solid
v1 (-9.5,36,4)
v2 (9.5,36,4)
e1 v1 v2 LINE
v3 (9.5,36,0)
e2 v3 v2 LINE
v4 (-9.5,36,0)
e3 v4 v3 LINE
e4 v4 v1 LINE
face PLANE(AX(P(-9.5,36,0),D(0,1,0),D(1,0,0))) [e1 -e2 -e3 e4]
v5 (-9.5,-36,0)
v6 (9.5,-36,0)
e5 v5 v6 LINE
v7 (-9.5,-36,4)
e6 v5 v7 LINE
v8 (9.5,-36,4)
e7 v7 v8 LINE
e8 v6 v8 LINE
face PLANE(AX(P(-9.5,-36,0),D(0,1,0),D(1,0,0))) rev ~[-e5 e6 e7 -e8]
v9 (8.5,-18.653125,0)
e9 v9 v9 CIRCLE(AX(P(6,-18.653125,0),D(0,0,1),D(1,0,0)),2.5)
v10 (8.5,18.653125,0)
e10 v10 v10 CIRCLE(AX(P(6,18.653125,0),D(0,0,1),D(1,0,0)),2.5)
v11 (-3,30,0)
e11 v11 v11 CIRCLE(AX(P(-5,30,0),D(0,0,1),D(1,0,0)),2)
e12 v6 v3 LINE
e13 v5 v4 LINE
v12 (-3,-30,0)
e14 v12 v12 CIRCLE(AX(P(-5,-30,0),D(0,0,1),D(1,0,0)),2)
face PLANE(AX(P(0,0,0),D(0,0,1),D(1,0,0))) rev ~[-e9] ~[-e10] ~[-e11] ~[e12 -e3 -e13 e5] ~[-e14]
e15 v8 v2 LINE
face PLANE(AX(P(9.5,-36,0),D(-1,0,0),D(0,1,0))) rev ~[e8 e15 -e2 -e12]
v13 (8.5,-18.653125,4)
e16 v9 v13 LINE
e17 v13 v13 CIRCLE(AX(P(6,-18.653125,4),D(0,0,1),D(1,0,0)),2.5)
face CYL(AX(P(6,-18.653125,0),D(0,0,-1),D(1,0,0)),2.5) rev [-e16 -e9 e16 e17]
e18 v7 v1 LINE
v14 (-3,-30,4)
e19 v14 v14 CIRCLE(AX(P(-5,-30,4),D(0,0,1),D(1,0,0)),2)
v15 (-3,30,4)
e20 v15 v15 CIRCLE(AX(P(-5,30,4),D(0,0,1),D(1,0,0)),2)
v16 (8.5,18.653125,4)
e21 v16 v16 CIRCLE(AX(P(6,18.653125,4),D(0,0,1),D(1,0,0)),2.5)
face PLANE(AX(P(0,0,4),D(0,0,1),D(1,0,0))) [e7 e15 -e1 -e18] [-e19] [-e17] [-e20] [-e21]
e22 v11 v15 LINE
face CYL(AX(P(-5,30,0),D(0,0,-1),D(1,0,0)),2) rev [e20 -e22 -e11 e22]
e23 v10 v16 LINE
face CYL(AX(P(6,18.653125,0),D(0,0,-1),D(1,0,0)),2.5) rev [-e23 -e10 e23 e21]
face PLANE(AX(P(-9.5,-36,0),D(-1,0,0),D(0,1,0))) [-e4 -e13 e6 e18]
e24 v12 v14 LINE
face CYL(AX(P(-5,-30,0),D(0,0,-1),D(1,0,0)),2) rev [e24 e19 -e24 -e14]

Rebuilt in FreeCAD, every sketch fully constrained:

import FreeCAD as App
import Part
import Sketcher
Q = App.Units.Quantity

doc = App.newDocument("Part")
params = doc.addObject("Spreadsheet::Sheet", "Params")
for row, (alias, value) in enumerate([
    ("sketch1_diameter", "4 mm"),
    ("sketch1_diameter2", "5 mm"),
    ("sketch1_width", "19 mm"),
    ("sketch1_height", "72 mm"),
    ("pad1_length", "4 mm"),
], start=1):
    params.set(f"A{row}", alias)
    params.set(f"B{row}", "=" + value)
    params.setAlias(f"B{row}", alias)

body = doc.addObject("PartDesign::Body", "Body")

sketch1 = body.newObject("Sketcher::SketchObject", "Sketch")
sketch1.AttachmentSupport = (doc.getObject("XY_Plane"), [""])
sketch1.MapMode = "FlatFace"
sketch1.addGeometry([
    Part.LineSegment(App.Vector(-9.5, 36, 0), App.Vector(-9.5, -36, 0)),
    Part.LineSegment(App.Vector(-9.5, -36, 0), App.Vector(9.5, -36, 0)),
    Part.LineSegment(App.Vector(9.5, -36, 0), App.Vector(9.5, 36, 0)),
    Part.LineSegment(App.Vector(9.5, 36, 0), App.Vector(-9.5, 36, 0)),
    Part.Circle(App.Vector(-5, -30, 0), App.Vector(0, 0, 1), 2),
    Part.Circle(App.Vector(6, -18.653125, 0), App.Vector(0, 0, 1), 2.5),
    Part.Circle(App.Vector(-5, 30, 0), App.Vector(0, 0, 1), 2),
    Part.Circle(App.Vector(6, 18.653125, 0), App.Vector(0, 0, 1), 2.5),
], False)
sketch1.addConstraint([
    Sketcher.Constraint("Coincident", 0, 2, 1, 1),
    Sketcher.Constraint("Coincident", 1, 2, 2, 1),
    Sketcher.Constraint("Coincident", 2, 2, 3, 1),
    Sketcher.Constraint("Coincident", 3, 2, 0, 1),
    Sketcher.Constraint("Vertical", 0),
    Sketcher.Constraint("Horizontal", 1),
    Sketcher.Constraint("Vertical", 2),
    Sketcher.Constraint("Horizontal", 3),
    Sketcher.Constraint("Equal", 4, 6),
    Sketcher.Constraint("Equal", 5, 7),
    Sketcher.Constraint("Symmetric", 0, 2, 2, 2, -1, 1),
    Sketcher.Constraint("Symmetric", 4, 3, 6, 3, -1),
    Sketcher.Constraint("Symmetric", 5, 3, 7, 3, -1),
    Sketcher.Constraint("Diameter", 4, Q("4 mm")),
    Sketcher.Constraint("Diameter", 5, Q("5 mm")),
    Sketcher.Constraint("DistanceX", 1, 1, 1, 2, Q("19 mm")),
    Sketcher.Constraint("DistanceY", 0, 2, 0, 1, Q("72 mm")),
    Sketcher.Constraint("DistanceX", 4, 3, -1, 1, Q("5 mm")),
    Sketcher.Constraint("DistanceY", 4, 3, -1, 1, Q("30 mm")),
    Sketcher.Constraint("DistanceX", -1, 1, 5, 3, Q("6 mm")),
    Sketcher.Constraint("DistanceY", 5, 3, 7, 3, Q("37.30625 mm")),
])
sketch1.setExpression("Constraints[13]", "Params.sketch1_diameter")
sketch1.setExpression("Constraints[14]", "Params.sketch1_diameter2")
sketch1.setExpression("Constraints[15]", "Params.sketch1_width")
sketch1.setExpression("Constraints[16]", "Params.sketch1_height")
pad1 = body.newObject("PartDesign::Pad", "Pad")
pad1.Profile = sketch1
pad1.setExpression("Length", "Params.pad1_length")

doc.recompute()
